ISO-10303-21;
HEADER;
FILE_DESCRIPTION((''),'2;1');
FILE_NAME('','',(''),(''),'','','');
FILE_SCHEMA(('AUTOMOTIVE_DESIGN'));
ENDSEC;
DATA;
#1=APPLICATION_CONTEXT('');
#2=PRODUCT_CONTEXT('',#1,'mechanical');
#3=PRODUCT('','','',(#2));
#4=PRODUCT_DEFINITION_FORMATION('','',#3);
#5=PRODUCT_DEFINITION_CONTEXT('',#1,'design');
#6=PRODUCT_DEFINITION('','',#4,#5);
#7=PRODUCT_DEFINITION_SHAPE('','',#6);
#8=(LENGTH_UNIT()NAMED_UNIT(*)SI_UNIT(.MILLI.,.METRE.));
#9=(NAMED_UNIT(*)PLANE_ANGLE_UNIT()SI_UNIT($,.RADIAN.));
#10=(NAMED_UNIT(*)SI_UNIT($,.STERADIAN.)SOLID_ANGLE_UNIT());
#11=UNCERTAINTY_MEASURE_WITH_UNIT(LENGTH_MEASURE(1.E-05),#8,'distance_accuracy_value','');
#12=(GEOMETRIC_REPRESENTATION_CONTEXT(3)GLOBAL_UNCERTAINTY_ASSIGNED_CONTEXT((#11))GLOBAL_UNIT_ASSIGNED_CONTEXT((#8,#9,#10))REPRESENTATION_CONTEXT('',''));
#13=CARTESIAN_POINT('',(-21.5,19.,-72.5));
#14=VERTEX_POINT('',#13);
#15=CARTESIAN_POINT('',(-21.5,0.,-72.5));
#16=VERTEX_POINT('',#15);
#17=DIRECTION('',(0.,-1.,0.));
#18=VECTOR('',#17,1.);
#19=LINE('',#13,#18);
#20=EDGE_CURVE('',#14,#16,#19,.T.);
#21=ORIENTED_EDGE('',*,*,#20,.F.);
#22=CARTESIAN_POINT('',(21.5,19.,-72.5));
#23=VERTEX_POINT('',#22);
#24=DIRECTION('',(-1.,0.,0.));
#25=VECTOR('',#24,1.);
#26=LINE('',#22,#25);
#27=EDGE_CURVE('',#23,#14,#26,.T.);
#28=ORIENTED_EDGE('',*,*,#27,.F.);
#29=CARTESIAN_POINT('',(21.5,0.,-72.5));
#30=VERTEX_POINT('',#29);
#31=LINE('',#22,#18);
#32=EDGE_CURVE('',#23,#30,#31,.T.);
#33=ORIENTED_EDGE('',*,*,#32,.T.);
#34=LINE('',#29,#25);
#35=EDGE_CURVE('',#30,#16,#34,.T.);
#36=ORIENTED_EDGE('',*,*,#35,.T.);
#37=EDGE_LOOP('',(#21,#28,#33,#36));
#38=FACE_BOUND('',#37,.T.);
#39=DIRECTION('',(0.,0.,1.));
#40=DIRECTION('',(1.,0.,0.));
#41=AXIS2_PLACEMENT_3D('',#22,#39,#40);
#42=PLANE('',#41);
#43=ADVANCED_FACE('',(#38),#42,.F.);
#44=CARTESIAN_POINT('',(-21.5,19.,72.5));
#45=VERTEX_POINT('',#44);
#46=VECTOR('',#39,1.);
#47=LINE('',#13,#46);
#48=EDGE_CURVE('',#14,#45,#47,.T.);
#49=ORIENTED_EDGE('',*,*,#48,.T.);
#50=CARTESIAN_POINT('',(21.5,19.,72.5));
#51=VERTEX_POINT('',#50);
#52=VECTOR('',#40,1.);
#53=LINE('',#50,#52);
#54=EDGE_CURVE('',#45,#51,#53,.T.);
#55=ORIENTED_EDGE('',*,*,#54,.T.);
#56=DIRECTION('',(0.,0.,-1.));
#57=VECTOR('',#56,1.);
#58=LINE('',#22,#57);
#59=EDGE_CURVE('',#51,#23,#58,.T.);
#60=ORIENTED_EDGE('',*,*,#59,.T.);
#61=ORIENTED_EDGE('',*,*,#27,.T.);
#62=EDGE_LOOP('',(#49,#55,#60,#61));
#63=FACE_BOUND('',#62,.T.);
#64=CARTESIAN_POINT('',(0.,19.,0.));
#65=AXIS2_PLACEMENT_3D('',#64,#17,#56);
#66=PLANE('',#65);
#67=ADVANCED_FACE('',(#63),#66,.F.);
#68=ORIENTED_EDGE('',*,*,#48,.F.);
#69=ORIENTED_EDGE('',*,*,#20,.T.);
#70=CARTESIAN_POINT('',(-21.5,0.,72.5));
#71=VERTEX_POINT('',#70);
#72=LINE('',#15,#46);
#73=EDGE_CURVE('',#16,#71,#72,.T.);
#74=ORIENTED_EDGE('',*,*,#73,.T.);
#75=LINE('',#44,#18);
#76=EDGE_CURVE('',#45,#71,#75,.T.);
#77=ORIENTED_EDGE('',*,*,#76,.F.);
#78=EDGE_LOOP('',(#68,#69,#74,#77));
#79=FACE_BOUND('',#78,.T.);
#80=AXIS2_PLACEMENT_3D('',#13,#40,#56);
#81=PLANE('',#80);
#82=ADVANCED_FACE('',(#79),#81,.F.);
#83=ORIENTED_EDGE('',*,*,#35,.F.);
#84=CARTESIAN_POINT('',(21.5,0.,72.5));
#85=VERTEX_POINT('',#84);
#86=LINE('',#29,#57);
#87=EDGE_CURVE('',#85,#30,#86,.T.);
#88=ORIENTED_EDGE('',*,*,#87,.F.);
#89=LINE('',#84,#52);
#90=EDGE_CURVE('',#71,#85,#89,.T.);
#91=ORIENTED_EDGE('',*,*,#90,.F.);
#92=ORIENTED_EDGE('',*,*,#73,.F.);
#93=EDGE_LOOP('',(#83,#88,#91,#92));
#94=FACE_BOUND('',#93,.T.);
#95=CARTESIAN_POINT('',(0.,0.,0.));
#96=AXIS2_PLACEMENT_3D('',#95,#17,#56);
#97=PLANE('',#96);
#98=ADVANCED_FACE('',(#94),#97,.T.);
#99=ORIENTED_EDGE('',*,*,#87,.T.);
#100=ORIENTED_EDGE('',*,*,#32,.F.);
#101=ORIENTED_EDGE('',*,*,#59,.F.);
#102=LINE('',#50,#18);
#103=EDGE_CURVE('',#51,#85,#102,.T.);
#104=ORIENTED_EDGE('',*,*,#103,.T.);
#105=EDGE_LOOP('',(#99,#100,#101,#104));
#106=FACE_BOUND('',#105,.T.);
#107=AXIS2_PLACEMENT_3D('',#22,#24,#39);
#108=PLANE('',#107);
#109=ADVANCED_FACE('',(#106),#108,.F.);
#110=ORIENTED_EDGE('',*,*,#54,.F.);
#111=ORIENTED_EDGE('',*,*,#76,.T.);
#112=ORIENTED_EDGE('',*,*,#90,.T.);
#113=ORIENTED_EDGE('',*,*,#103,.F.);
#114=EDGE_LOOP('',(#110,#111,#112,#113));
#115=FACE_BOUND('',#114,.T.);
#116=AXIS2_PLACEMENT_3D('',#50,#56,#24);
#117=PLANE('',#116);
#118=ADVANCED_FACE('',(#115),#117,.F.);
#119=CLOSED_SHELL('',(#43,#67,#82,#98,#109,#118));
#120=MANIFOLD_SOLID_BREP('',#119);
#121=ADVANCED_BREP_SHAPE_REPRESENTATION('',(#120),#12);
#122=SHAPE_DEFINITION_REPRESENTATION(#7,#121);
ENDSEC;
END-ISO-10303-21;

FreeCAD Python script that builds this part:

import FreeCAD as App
import Part
import Sketcher
from FreeCAD import Vector


def add_polygon(sketch, points):
    """Adds a closed chain of lines whose ends are joined by coincident constraints."""
    first, n = sketch.GeometryCount, len(points)
    for a, b in zip(points, points[1:] + points[:1]):
        sketch.addGeometry(Part.LineSegment(App.Vector(*a, 0), App.Vector(*b, 0)), False)
    for i in range(n):
        sketch.addConstraint(Sketcher.Constraint("Coincident", first + i, 2, first + (i + 1) % n, 1))

doc = App.newDocument("Part")
body = doc.addObject("PartDesign::Body", "Body")

# Sketch on XZ plane
sketch1 = body.newObject("Sketcher::SketchObject", "Sketch")
sketch1.AttachmentSupport = (doc.getObject("XZ_Plane"), [""])
sketch1.MapMode = "FlatFace"
add_polygon(sketch1, [(-21.5, -72.5), (-21.5, 72.5), (21.5, 72.5), (21.5, -72.5)])  # lines 0-3
sketch1.addConstraint(Sketcher.Constraint("Vertical", 0))
sketch1.addConstraint(Sketcher.Constraint("Horizontal", 1))
sketch1.addConstraint(Sketcher.Constraint("Vertical", 2))
sketch1.addConstraint(Sketcher.Constraint("Horizontal", 3))
sketch1.addConstraint(Sketcher.Constraint("Symmetric", 0, 2, 2, 2, -1, 1))
sketch1.addConstraint(Sketcher.Constraint("DistanceX", 1, 1, 1, 2, 43.0))
sketch1.addConstraint(Sketcher.Constraint("DistanceY", 0, 1, 0, 2, 145.0))
pad1 = body.newObject("PartDesign::Pad", "Pad")
pad1.Profile = sketch1
pad1.Length = 19
pad1.Reversed = True

doc.recompute()
